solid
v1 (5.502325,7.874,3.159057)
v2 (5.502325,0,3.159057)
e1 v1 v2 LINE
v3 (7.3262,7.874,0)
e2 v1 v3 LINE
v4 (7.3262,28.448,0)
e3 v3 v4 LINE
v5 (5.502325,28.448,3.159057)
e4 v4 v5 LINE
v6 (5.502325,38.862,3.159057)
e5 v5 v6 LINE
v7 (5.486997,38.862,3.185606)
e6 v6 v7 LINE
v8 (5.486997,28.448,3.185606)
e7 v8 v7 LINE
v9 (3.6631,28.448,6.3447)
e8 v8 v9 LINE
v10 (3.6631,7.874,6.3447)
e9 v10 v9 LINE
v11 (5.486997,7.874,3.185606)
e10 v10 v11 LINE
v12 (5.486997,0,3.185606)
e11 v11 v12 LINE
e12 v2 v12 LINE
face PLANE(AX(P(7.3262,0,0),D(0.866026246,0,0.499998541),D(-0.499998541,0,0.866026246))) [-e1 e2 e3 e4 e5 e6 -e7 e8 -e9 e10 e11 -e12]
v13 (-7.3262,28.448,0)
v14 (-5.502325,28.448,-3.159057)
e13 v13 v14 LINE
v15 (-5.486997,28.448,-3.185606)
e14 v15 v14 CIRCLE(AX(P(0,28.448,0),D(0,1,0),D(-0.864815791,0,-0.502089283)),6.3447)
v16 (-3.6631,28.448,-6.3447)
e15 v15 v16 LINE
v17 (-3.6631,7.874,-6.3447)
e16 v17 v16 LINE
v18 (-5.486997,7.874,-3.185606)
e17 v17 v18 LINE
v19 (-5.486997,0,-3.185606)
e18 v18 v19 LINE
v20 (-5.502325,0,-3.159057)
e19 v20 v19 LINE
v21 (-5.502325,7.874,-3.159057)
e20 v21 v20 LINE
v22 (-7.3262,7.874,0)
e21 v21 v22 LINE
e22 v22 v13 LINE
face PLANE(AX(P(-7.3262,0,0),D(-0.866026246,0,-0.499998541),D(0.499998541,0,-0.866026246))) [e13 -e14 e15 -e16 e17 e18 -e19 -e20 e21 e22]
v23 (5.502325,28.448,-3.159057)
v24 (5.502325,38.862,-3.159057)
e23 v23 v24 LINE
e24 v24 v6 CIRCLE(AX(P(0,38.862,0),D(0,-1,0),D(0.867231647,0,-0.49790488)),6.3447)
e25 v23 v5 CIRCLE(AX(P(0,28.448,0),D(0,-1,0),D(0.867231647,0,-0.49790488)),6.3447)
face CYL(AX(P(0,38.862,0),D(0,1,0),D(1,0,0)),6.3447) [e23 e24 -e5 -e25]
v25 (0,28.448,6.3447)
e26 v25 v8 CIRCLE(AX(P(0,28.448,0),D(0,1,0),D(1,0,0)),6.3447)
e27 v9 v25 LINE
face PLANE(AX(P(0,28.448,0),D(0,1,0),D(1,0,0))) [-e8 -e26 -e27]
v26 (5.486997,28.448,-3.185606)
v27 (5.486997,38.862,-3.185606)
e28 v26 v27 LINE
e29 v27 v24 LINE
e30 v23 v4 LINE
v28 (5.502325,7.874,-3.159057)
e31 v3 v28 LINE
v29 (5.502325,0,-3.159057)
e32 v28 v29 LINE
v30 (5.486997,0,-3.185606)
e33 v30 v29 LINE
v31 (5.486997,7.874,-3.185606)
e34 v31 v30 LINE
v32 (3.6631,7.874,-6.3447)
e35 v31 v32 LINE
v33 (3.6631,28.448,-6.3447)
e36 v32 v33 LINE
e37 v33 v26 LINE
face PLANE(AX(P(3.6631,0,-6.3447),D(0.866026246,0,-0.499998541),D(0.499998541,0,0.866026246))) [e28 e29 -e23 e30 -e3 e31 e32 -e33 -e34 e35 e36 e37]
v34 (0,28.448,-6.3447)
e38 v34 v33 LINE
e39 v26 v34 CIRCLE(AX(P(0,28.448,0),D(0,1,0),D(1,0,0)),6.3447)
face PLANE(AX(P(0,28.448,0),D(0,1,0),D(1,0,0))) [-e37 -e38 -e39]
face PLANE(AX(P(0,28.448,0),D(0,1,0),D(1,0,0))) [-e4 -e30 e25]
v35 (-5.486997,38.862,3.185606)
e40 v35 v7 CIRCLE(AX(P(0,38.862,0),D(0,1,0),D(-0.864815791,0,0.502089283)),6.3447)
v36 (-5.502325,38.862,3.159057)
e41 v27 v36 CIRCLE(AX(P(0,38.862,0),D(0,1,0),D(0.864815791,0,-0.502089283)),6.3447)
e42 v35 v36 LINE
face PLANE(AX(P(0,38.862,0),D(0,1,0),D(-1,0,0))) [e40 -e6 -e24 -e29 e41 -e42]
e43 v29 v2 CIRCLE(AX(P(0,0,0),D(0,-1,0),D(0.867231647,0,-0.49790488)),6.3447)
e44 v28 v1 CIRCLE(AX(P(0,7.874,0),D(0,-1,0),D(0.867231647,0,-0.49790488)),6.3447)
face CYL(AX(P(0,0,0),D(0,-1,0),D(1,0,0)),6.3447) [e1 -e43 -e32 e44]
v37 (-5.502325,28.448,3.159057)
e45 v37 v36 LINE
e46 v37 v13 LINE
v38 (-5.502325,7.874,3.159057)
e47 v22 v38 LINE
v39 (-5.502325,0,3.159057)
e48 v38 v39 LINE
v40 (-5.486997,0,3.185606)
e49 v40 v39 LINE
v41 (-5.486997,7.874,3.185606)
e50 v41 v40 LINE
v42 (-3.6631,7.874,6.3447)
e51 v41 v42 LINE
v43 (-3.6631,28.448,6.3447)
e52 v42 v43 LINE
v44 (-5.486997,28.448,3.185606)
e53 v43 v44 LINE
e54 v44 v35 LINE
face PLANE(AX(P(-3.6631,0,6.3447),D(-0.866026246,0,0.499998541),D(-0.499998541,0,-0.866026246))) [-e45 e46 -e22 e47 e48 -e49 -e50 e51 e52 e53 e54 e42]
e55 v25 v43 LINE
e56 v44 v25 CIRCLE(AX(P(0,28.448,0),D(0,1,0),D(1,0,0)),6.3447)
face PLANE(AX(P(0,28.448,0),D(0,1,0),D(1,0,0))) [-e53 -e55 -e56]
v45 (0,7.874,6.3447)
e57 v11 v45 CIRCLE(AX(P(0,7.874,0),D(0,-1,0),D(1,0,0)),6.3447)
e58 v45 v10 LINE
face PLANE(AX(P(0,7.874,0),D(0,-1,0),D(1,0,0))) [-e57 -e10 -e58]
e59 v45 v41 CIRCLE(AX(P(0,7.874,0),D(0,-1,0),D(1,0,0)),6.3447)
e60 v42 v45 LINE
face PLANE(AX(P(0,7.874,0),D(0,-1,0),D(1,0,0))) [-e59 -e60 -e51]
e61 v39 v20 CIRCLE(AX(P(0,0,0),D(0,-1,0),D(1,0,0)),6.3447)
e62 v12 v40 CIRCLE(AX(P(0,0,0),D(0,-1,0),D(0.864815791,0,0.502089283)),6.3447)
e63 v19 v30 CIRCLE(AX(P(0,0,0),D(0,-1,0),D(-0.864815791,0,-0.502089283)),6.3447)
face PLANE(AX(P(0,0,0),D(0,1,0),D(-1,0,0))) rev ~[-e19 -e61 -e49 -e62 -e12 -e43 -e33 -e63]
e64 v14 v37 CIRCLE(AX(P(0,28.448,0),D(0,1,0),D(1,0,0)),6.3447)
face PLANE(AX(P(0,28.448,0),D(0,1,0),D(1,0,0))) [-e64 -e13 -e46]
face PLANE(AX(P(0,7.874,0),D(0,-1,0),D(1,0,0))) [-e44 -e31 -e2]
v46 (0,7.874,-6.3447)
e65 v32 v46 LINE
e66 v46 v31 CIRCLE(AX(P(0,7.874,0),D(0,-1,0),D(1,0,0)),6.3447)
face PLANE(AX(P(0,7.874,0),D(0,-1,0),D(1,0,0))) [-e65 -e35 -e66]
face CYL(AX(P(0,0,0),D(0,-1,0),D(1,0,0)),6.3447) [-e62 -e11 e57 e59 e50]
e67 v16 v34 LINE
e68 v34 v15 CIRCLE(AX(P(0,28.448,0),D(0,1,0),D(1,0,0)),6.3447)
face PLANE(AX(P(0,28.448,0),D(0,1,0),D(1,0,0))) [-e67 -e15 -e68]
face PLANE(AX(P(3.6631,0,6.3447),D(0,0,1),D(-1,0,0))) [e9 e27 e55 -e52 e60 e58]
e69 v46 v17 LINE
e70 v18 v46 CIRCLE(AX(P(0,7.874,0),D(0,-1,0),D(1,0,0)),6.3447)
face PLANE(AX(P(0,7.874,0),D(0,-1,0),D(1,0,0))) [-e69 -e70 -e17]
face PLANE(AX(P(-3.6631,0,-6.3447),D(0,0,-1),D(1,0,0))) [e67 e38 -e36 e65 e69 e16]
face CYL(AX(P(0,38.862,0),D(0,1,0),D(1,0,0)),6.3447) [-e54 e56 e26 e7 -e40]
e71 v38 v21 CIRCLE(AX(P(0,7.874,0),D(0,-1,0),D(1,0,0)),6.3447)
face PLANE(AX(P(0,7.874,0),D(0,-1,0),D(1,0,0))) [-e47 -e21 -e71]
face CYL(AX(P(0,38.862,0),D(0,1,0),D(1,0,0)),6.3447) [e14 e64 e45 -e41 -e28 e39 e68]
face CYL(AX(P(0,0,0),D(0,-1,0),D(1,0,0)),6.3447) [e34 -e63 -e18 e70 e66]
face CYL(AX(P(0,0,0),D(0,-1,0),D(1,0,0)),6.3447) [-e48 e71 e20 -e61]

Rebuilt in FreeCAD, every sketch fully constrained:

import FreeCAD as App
import Part
import Sketcher
from FreeCAD import Vector
Q = App.Units.Quantity

doc = App.newDocument("Part")
params = doc.addObject("Spreadsheet::Sheet", "Params")
for row, (alias, value) in enumerate([
    ("pad1_length", "1.53 in"),
    ("pocket1_length", "0.41 in"),
    ("pocket2_length", "0.31 in"),
], start=1):
    params.set(f"A{row}", alias)
    params.set(f"B{row}", "=" + value)
    params.setAlias(f"B{row}", alias)

body = doc.addObject("PartDesign::Body", "Body")

sketch1 = body.newObject("Sketcher::SketchObject", "Sketch")
sketch1.AttachmentSupport = (doc.getObject("XZ_Plane"), [""])
sketch1.MapMode = "FlatFace"
sketch1.addGeometry([
    Part.LineSegment(Vector(7, 0, 0), Vector(4, -6, 0)),
    Part.LineSegment(Vector(4, -6, 0), Vector(-4, -6, 0)),
    Part.LineSegment(Vector(-4, -6, 0), Vector(-7, 0, 0)),
    Part.LineSegment(Vector(-7, 0, 0), Vector(-4, 6, 0)),
    Part.LineSegment(Vector(-4, 6, 0), Vector(4, 6, 0)),
    Part.LineSegment(Vector(4, 6, 0), Vector(7, 0, 0)),
], False)
sketch1.addConstraint([
    Sketcher.Constraint("Coincident", 0, 2, 1, 1),
    Sketcher.Constraint("Coincident", 1, 2, 2, 1),
    Sketcher.Constraint("Coincident", 2, 2, 3, 1),
    Sketcher.Constraint("Coincident", 3, 2, 4, 1),
    Sketcher.Constraint("Coincident", 4, 2, 5, 1),
    Sketcher.Constraint("Coincident", 5, 2, 0, 1),
    Sketcher.Constraint("Horizontal", 1),
    Sketcher.Constraint("Horizontal", 4),
    Sketcher.Constraint("Symmetric", 0, 2, 3, 2, -1, 1),
    Sketcher.Constraint("Symmetric", 2, 2, 5, 2, -1, 1),
    Sketcher.Constraint("PointOnObject", 2, 2, -1),
    Sketcher.Constraint("Parallel", 2, 5),
    Sketcher.Constraint("Vertical", 1, 2, 3, 2),
    Sketcher.Constraint("Angle", 0, Q("-120 deg")),
    Sketcher.Constraint("DistanceX", 1, 2, 1, 1, Q("7.3262 mm")),
    Sketcher.Constraint("DistanceY", 0, 2, -1, 1, Q("0.2498 in")),
])
pad1 = body.newObject("PartDesign::Pad", "Pad")
pad1.Profile = sketch1
pad1.setExpression("Length", "Params.pad1_length")
pad1.Reversed = True

sketch2 = body.newObject("Sketcher::SketchObject", "Sketch001")
sketch2.AttachmentSupport = (doc.getObject("XZ_Plane"), [""])
sketch2.MapMode = "FlatFace"
sketch2.AttachmentOffset = App.Placement(Vector(0, 0, -1.53 * 25.4), App.Rotation())
sketch2.addGeometry([
    Part.LineSegment(Vector(-13, -22, 0), Vector(-13, 15, 0)),
    Part.LineSegment(Vector(-13, 15, 0), Vector(23, 15, 0)),
    Part.LineSegment(Vector(23, 15, 0), Vector(23, -22, 0)),
    Part.LineSegment(Vector(23, -22, 0), Vector(-13, -22, 0)),
    Part.Circle(Vector(0, 0, 0), Vector(0, 0, 1), 6),
], False)
sketch2.addConstraint([
    Sketcher.Constraint("Coincident", 0, 2, 1, 1),
    Sketcher.Constraint("Coincident", 1, 2, 2, 1),
    Sketcher.Constraint("Coincident", 2, 2, 3, 1),
    Sketcher.Constraint("Coincident", 3, 2, 0, 1),
    Sketcher.Constraint("Vertical", 0),
    Sketcher.Constraint("Horizontal", 1),
    Sketcher.Constraint("Vertical", 2),
    Sketcher.Constraint("Horizontal", 3),
    Sketcher.Constraint("Coincident", 4, 3, -1, 1),
    Sketcher.Constraint("Diameter", 4, Q("12.6894 mm")),
    Sketcher.Constraint("DistanceX", 1, 1, 1, 2, Q("35.2716 mm")),
    Sketcher.Constraint("DistanceY", 0, 1, 0, 2, Q("37.4837 mm")),
    Sketcher.Constraint("DistanceX", 0, 2, -1, 1, Q("12.7498 mm")),
    Sketcher.Constraint("DistanceY", -1, 1, 0, 2, Q("15.485 mm")),
])
pocket1 = body.newObject("PartDesign::Pocket", "Pocket")
pocket1.Profile = sketch2
pocket1.setExpression("Length", "Params.pocket1_length")
pocket1.Reversed = True

sketch3 = body.newObject("Sketcher::SketchObject", "Sketch002")
sketch3.AttachmentSupport = (doc.getObject("XZ_Plane"), [""])
sketch3.MapMode = "FlatFace"
sketch3.addGeometry([
    Part.LineSegment(Vector(13, -23, 0), Vector(13, 10, 0)),
    Part.LineSegment(Vector(13, 10, 0), Vector(-19, 10, 0)),
    Part.LineSegment(Vector(-19, 10, 0), Vector(-19, -23, 0)),
    Part.LineSegment(Vector(-19, -23, 0), Vector(13, -23, 0)),
    Part.Circle(Vector(0, 0, 0), Vector(0, 0, 1), 6),
], False)
sketch3.addConstraint([
    Sketcher.Constraint("Coincident", 0, 2, 1, 1),
    Sketcher.Constraint("Coincident", 1, 2, 2, 1),
    Sketcher.Constraint("Coincident", 2, 2, 3, 1),
    Sketcher.Constraint("Coincident", 3, 2, 0, 1),
    Sketcher.Constraint("Vertical", 0),
    Sketcher.Constraint("Horizontal", 1),
    Sketcher.Constraint("Vertical", 2),
    Sketcher.Constraint("Horizontal", 3),
    Sketcher.Constraint("Coincident", 4, 3, -1, 1),
    Sketcher.Constraint("Diameter", 4, Q("12.6894 mm")),
    Sketcher.Constraint("DistanceX", 1, 2, 1, 1, Q("31.7075 mm")),
    Sketcher.Constraint("DistanceY", 0, 1, 0, 2, Q("32.6907 mm")),
    Sketcher.Constraint("DistanceX", -1, 1, 0, 2, Q("0.5165 in")),
    Sketcher.Constraint("DistanceY", -1, 1, 0, 2, Q("9.9547 mm")),
])
pocket2 = body.newObject("PartDesign::Pocket", "Pocket001")
pocket2.Profile = sketch3
pocket2.setExpression("Length", "Params.pocket2_length")

doc.recompute()
